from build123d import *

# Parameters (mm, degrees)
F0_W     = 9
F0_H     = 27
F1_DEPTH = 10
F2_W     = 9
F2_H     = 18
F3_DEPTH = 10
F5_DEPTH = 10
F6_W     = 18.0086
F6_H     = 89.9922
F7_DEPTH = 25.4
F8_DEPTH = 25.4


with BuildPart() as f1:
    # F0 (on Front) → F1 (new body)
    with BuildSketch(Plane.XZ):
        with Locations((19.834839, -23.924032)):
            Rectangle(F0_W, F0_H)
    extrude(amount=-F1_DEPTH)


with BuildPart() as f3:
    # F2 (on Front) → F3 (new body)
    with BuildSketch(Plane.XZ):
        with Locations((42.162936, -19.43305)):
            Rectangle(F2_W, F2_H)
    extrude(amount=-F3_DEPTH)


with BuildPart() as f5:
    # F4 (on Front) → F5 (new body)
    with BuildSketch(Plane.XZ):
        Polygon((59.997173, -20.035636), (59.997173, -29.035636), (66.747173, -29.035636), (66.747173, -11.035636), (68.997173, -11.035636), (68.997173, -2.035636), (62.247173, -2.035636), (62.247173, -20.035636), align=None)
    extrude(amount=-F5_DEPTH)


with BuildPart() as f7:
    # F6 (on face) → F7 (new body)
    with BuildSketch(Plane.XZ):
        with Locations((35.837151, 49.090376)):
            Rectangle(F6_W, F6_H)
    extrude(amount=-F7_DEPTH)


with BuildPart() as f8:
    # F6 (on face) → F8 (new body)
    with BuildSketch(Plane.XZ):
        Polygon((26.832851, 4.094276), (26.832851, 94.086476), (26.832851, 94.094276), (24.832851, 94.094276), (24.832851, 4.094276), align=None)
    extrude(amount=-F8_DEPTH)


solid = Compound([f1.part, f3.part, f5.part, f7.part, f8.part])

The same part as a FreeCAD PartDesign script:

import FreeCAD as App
import Part
import Sketcher


def add_polygon(sketch, points):
    """Adds a closed chain of lines whose ends are joined by coincident constraints."""
    first, n = sketch.GeometryCount, len(points)
    for a, b in zip(points, points[1:] + points[:1]):
        sketch.addGeometry(Part.LineSegment(App.Vector(*a, 0), App.Vector(*b, 0)), False)
    for i in range(n):
        sketch.addConstraint(Sketcher.Constraint("Coincident", first + i, 2, first + (i + 1) % n, 1))

doc = App.newDocument("Part")
body = doc.addObject("PartDesign::Body", "Body")

sketch1 = body.newObject("Sketcher::SketchObject", "Sketch")
sketch1.AttachmentSupport = (doc.getObject("XZ_Plane"), [""])
sketch1.MapMode = "FlatFace"
add_polygon(sketch1, [(15, -10), (15, -37), (24, -37), (24, -10)])
sketch1.addConstraint([
    Sketcher.Constraint("Vertical", 0),
    Sketcher.Constraint("Horizontal", 1),
    Sketcher.Constraint("Vertical", 2),
    Sketcher.Constraint("Horizontal", 3),
    Sketcher.Constraint("DistanceX", 1, 1, 1, 2, 9.0),
    Sketcher.Constraint("DistanceY", 0, 2, 0, 1, 27.0),
    Sketcher.Constraint("DistanceX", -1, 1, 0, 2, 15.334839),
    Sketcher.Constraint("DistanceY", 0, 2, -1, 1, 37.424032),
])
pad1 = body.newObject("PartDesign::Pad", "Pad")
pad1.Profile = sketch1
pad1.Length = 10
pad1.Reversed = True
body2 = doc.addObject("PartDesign::Body", "Body001")

sketch2 = body2.newObject("Sketcher::SketchObject", "Sketch001")
sketch2.AttachmentSupport = (doc.getObject("XZ_Plane001"), [""])
sketch2.MapMode = "FlatFace"
add_polygon(sketch2, [(38, -10), (38, -28), (47, -28), (47, -10)])
sketch2.addConstraint([
    Sketcher.Constraint("Vertical", 0),
    Sketcher.Constraint("Horizontal", 1),
    Sketcher.Constraint("Vertical", 2),
    Sketcher.Constraint("Horizontal", 3),
    Sketcher.Constraint("DistanceX", 1, 1, 1, 2, 9.0),
    Sketcher.Constraint("DistanceY", 0, 2, 0, 1, 18.0),
    Sketcher.Constraint("DistanceY", 0, 2, -1, 1, 28.43305),
    Sketcher.Constraint("DistanceX", -1, 1, 0, 2, 37.662936),
])
pad2 = body2.newObject("PartDesign::Pad", "Pad001")
pad2.Profile = sketch2
pad2.Length = 10
pad2.Reversed = True
body3 = doc.addObject("PartDesign::Body", "Body002")

sketch3 = body3.newObject("Sketcher::SketchObject", "Sketch002")
sketch3.AttachmentSupport = (doc.getObject("XZ_Plane002"), [""])
sketch3.MapMode = "FlatFace"
add_polygon(sketch3, [(60, -20), (60, -29), (66.7, -29), (66.7, -11), (69, -11), (69, -2), (62.2, -2), (62.2, -20)])
sketch3.addConstraint([
    Sketcher.Constraint("Vertical", 0),
    Sketcher.Constraint("Horizontal", 1),
    Sketcher.Constraint("Vertical", 2),
    Sketcher.Constraint("Horizontal", 3),
    Sketcher.Constraint("Vertical", 4),
    Sketcher.Constraint("Horizontal", 5),
    Sketcher.Constraint("Vertical", 6),
    Sketcher.Constraint("Horizontal", 7),
    Sketcher.Constraint("Equal", 1, 5),
    Sketcher.Constraint("Equal", 0, 4),
    Sketcher.Constraint("DistanceY", 0, 2, 0, 1, 9.0),
    Sketcher.Constraint("DistanceY", 2, 1, 2, 2, 18.0),
    Sketcher.Constraint("DistanceX", 0, 2, 3, 2, 9.0),
    Sketcher.Constraint("DistanceX", 1, 1, 1, 2, 6.75),
    Sketcher.Constraint("DistanceX", -1, 1, 0, 2, 59.997173),
    Sketcher.Constraint("DistanceY", 0, 2, -1, 1, 29.035636),
])
pad3 = body3.newObject("PartDesign::Pad", "Pad002")
pad3.Profile = sketch3
pad3.Length = 10
pad3.Reversed = True
body4 = doc.addObject("PartDesign::Body", "Body003")

sketch4 = body4.newObject("Sketcher::SketchObject", "Sketch003")
sketch4.AttachmentSupport = (doc.getObject("XZ_Plane003"), [""])
sketch4.MapMode = "FlatFace"
add_polygon(sketch4, [(27, 94), (27, 4), (45, 4), (45, 94)])
sketch4.addConstraint([
    Sketcher.Constraint("Vertical", 0),
    Sketcher.Constraint("Horizontal", 1),
    Sketcher.Constraint("Vertical", 2),
    Sketcher.Constraint("Horizontal", 3),
    Sketcher.Constraint("DistanceX", 1, 1, 1, 2, 18.0086),
    Sketcher.Constraint("DistanceY", 0, 2, 0, 1, 89.9922),
    Sketcher.Constraint("DistanceX", -1, 1, 0, 2, 26.832851),
    Sketcher.Constraint("DistanceY", -1, 1, 0, 2, 4.094276),
])
pad4 = body4.newObject("PartDesign::Pad", "Pad003")
pad4.Profile = sketch4
pad4.Length = 25.4
pad4.Reversed = True
body5 = doc.addObject("PartDesign::Body", "Body004")

sketch5 = body5.newObject("Sketcher::SketchObject", "Sketch004")
sketch5.AttachmentSupport = (doc.getObject("XZ_Plane004"), [""])
sketch5.MapMode = "FlatFace"
add_polygon(sketch5, [(26.8, 4.1), (26.8, 94.1), (24.8, 94.1), (24.8, 4.1)])
sketch5.addConstraint([
    Sketcher.Constraint("Vertical", 0),
    Sketcher.Constraint("Horizontal", 1),
    Sketcher.Constraint("Vertical", 2),
    Sketcher.Constraint("Horizontal", 3),
    Sketcher.Constraint("DistanceX", 1, 2, 1, 1, 2.0),
    Sketcher.Constraint("DistanceY", 0, 1, 0, 2, 90.0),
    Sketcher.Constraint("DistanceX", -1, 1, 0, 2, 26.832851),
    Sketcher.Constraint("DistanceY", -1, 1, 0, 2, 94.094276),
])
pad5 = body5.newObject("PartDesign::Pad", "Pad004")
pad5.Profile = sketch5
pad5.Length = 25.4
pad5.Reversed = True

doc.recompute()
